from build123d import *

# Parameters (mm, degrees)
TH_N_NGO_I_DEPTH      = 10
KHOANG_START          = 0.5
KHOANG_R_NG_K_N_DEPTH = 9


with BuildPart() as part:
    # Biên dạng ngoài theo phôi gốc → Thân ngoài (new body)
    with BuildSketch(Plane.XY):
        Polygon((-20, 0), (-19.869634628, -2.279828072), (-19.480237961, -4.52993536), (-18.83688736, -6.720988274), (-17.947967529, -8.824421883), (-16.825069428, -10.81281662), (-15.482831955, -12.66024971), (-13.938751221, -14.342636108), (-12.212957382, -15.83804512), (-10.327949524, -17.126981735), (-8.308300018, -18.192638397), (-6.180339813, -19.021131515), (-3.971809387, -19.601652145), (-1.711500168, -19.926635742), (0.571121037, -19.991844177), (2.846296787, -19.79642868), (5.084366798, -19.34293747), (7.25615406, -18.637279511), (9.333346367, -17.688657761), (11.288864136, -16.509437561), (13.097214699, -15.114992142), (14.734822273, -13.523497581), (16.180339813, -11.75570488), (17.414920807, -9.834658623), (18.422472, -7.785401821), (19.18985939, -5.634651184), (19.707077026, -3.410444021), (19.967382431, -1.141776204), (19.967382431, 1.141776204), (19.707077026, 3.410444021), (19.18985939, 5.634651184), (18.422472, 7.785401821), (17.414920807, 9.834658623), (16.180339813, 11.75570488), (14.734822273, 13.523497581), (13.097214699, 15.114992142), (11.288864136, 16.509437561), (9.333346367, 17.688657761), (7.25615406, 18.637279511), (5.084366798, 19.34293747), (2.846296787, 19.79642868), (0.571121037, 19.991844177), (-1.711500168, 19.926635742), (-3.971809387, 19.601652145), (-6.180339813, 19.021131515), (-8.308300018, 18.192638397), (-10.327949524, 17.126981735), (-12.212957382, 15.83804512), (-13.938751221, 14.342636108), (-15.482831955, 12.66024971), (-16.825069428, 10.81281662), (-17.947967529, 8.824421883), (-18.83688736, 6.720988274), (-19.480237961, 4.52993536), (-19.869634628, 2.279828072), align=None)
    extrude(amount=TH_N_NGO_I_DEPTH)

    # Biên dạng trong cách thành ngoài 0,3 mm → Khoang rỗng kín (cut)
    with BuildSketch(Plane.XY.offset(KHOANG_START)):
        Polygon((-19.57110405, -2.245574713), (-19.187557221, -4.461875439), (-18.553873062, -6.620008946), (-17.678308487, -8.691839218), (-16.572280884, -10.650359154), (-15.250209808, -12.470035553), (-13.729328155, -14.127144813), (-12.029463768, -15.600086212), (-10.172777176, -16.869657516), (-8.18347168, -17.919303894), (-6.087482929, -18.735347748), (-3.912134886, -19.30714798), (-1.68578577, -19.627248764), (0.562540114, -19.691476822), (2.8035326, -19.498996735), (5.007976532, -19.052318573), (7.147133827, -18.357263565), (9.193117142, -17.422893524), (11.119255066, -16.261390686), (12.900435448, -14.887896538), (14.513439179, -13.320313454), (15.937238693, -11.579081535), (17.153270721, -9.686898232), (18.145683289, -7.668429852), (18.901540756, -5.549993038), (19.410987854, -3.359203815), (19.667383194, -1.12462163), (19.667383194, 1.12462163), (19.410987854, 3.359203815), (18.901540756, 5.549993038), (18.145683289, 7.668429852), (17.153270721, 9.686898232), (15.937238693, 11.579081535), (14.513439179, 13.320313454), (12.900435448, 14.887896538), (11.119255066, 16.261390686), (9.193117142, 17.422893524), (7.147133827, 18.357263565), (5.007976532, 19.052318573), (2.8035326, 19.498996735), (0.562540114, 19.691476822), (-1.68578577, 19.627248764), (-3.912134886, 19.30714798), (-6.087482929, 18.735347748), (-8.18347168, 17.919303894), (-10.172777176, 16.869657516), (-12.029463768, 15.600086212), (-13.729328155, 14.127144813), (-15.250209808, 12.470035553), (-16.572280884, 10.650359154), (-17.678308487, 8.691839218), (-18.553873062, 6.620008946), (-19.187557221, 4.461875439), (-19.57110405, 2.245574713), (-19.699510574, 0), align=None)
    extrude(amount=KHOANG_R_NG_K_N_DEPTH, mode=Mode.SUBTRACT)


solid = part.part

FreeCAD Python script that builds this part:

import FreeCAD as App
import Part
import Sketcher

doc = App.newDocument("Part")
params = doc.addObject("Spreadsheet::Sheet", "Params")
for row, (alias, value) in enumerate([
    ("pad1_length", "10 mm"),
    ("pocket1_length", "9 mm"),
], start=1):
    params.set(f"A{row}", alias)
    params.set(f"B{row}", "=" + value)
    params.setAlias(f"B{row}", alias)

body = doc.addObject("PartDesign::Body", "Body")

sketch1 = doc.addObject("Sketcher::SketchObject", "Sketch")
body.addObject(sketch1)
sketch1.AttachmentSupport = (doc.XY_Plane, [""])
sketch1.MapMode = "FlatFace"
sketch1.addGeometry([
    Part.LineSegment(App.Vector(-20, 0, 0), App.Vector(-19.869635, -2.279828, 0)),
    Part.LineSegment(App.Vector(-19.869635, -2.279828, 0), App.Vector(-19.480238, -4.529935, 0)),
    Part.LineSegment(App.Vector(-19.480238, -4.529935, 0), App.Vector(-18.836887, -6.720988, 0)),
    Part.LineSegment(App.Vector(-18.836887, -6.720988, 0), App.Vector(-17.947968, -8.824422, 0)),
    Part.LineSegment(App.Vector(-17.947968, -8.824422, 0), App.Vector(-16.825069, -10.812817, 0)),
    Part.LineSegment(App.Vector(-16.825069, -10.812817, 0), App.Vector(-15.482832, -12.66025, 0)),
    Part.LineSegment(App.Vector(-15.482832, -12.66025, 0), App.Vector(-13.938751, -14.342636, 0)),
    Part.LineSegment(App.Vector(-13.938751, -14.342636, 0), App.Vector(-12.212957, -15.838045, 0)),
    Part.LineSegment(App.Vector(-12.212957, -15.838045, 0), App.Vector(-10.32795, -17.126982, 0)),
    Part.LineSegment(App.Vector(-10.32795, -17.126982, 0), App.Vector(-8.3083, -18.192638, 0)),
    Part.LineSegment(App.Vector(-8.3083, -18.192638, 0), App.Vector(-6.18034, -19.021132, 0)),
    Part.LineSegment(App.Vector(-6.18034, -19.021132, 0), App.Vector(-3.971809, -19.601652, 0)),
    Part.LineSegment(App.Vector(-3.971809, -19.601652, 0), App.Vector(-1.7115, -19.926636, 0)),
    Part.LineSegment(App.Vector(-1.7115, -19.926636, 0), App.Vector(0.571121, -19.991844, 0)),
    Part.LineSegment(App.Vector(0.571121, -19.991844, 0), App.Vector(2.846297, -19.796429, 0)),
    Part.LineSegment(App.Vector(2.846297, -19.796429, 0), App.Vector(5.084367, -19.342937, 0)),
    Part.LineSegment(App.Vector(5.084367, -19.342937, 0), App.Vector(7.256154, -18.63728, 0)),
    Part.LineSegment(App.Vector(7.256154, -18.63728, 0), App.Vector(9.333346, -17.688658, 0)),
    Part.LineSegment(App.Vector(9.333346, -17.688658, 0), App.Vector(11.288864, -16.509438, 0)),
    Part.LineSegment(App.Vector(11.288864, -16.509438, 0), App.Vector(13.097215, -15.114992, 0)),
    Part.LineSegment(App.Vector(13.097215, -15.114992, 0), App.Vector(14.734822, -13.523498, 0)),
    Part.LineSegment(App.Vector(14.734822, -13.523498, 0), App.Vector(16.18034, -11.755705, 0)),
    Part.LineSegment(App.Vector(16.18034, -11.755705, 0), App.Vector(17.414921, -9.834659, 0)),
    Part.LineSegment(App.Vector(17.414921, -9.834659, 0), App.Vector(18.422472, -7.785402, 0)),
    Part.LineSegment(App.Vector(18.422472, -7.785402, 0), App.Vector(19.189859, -5.634651, 0)),
    Part.LineSegment(App.Vector(19.189859, -5.634651, 0), App.Vector(19.707077, -3.410444, 0)),
    Part.LineSegment(App.Vector(19.707077, -3.410444, 0), App.Vector(19.967382, -1.141776, 0)),
    Part.LineSegment(App.Vector(19.967382, -1.141776, 0), App.Vector(19.967382, 1.141776, 0)),
    Part.LineSegment(App.Vector(19.967382, 1.141776, 0), App.Vector(19.707077, 3.410444, 0)),
    Part.LineSegment(App.Vector(19.707077, 3.410444, 0), App.Vector(19.189859, 5.634651, 0)),
    Part.LineSegment(App.Vector(19.189859, 5.634651, 0), App.Vector(18.422472, 7.785402, 0)),
    Part.LineSegment(App.Vector(18.422472, 7.785402, 0), App.Vector(17.414921, 9.834659, 0)),
    Part.LineSegment(App.Vector(17.414921, 9.834659, 0), App.Vector(16.18034, 11.755705, 0)),
    Part.LineSegment(App.Vector(16.18034, 11.755705, 0), App.Vector(14.734822, 13.523498, 0)),
    Part.LineSegment(App.Vector(14.734822, 13.523498, 0), App.Vector(13.097215, 15.114992, 0)),
    Part.LineSegment(App.Vector(13.097215, 15.114992, 0), App.Vector(11.288864, 16.509438, 0)),
    Part.LineSegment(App.Vector(11.288864, 16.509438, 0), App.Vector(9.333346, 17.688658, 0)),
    Part.LineSegment(App.Vector(9.333346, 17.688658, 0), App.Vector(7.256154, 18.63728, 0)),
    Part.LineSegment(App.Vector(7.256154, 18.63728, 0), App.Vector(5.084367, 19.342937, 0)),
    Part.LineSegment(App.Vector(5.084367, 19.342937, 0), App.Vector(2.846297, 19.796429, 0)),
    Part.LineSegment(App.Vector(2.846297, 19.796429, 0), App.Vector(0.571121, 19.991844, 0)),
    Part.LineSegment(App.Vector(0.571121, 19.991844, 0), App.Vector(-1.7115, 19.926636, 0)),
    Part.LineSegment(App.Vector(-1.7115, 19.926636, 0), App.Vector(-3.971809, 19.601652, 0)),
    Part.LineSegment(App.Vector(-3.971809, 19.601652, 0), App.Vector(-6.18034, 19.021132, 0)),
    Part.LineSegment(App.Vector(-6.18034, 19.021132, 0), App.Vector(-8.3083, 18.192638, 0)),
    Part.LineSegment(App.Vector(-8.3083, 18.192638, 0), App.Vector(-10.32795, 17.126982, 0)),
    Part.LineSegment(App.Vector(-10.32795, 17.126982, 0), App.Vector(-12.212957, 15.838045, 0)),
    Part.LineSegment(App.Vector(-12.212957, 15.838045, 0), App.Vector(-13.938751, 14.342636, 0)),
    Part.LineSegment(App.Vector(-13.938751, 14.342636, 0), App.Vector(-15.482832, 12.66025, 0)),
    Part.LineSegment(App.Vector(-15.482832, 12.66025, 0), App.Vector(-16.825069, 10.812817, 0)),
    Part.LineSegment(App.Vector(-16.825069, 10.812817, 0), App.Vector(-17.947968, 8.824422, 0)),
    Part.LineSegment(App.Vector(-17.947968, 8.824422, 0), App.Vector(-18.836887, 6.720988, 0)),
    Part.LineSegment(App.Vector(-18.836887, 6.720988, 0), App.Vector(-19.480238, 4.529935, 0)),
    Part.LineSegment(App.Vector(-19.480238, 4.529935, 0), App.Vector(-19.869635, 2.279828, 0)),
    Part.LineSegment(App.Vector(-19.869635, 2.279828, 0), App.Vector(-20, 0, 0)),
], False)
sketch1.addConstraint([
    Sketcher.Constraint("Coincident", 0, 2, 1, 1),
    Sketcher.Constraint("Coincident", 1, 2, 2, 1),
    Sketcher.Constraint("Coincident", 2, 2, 3, 1),
    Sketcher.Constraint("Coincident", 3, 2, 4, 1),
    Sketcher.Constraint("Coincident", 4, 2, 5, 1),
    Sketcher.Constraint("Coincident", 5, 2, 6, 1),
    Sketcher.Constraint("Coincident", 6, 2, 7, 1),
    Sketcher.Constraint("Coincident", 7, 2, 8, 1),
    Sketcher.Constraint("Coincident", 8, 2, 9, 1),
    Sketcher.Constraint("Coincident", 9, 2, 10, 1),
    Sketcher.Constraint("Coincident", 10, 2, 11, 1),
    Sketcher.Constraint("Coincident", 11, 2, 12, 1),
    Sketcher.Constraint("Coincident", 12, 2, 13, 1),
    Sketcher.Constraint("Coincident", 13, 2, 14, 1),
    Sketcher.Constraint("Coincident", 14, 2, 15, 1),
    Sketcher.Constraint("Coincident", 15, 2, 16, 1),
    Sketcher.Constraint("Coincident", 16, 2, 17, 1),
    Sketcher.Constraint("Coincident", 17, 2, 18, 1),
    Sketcher.Constraint("Coincident", 18, 2, 19, 1),
    Sketcher.Constraint("Coincident", 19, 2, 20, 1),
    Sketcher.Constraint("Coincident", 20, 2, 21, 1),
    Sketcher.Constraint("Coincident", 21, 2, 22, 1),
    Sketcher.Constraint("Coincident", 22, 2, 23, 1),
    Sketcher.Constraint("Coincident", 23, 2, 24, 1),
    Sketcher.Constraint("Coincident", 24, 2, 25, 1),
    Sketcher.Constraint("Coincident", 25, 2, 26, 1),
    Sketcher.Constraint("Coincident", 26, 2, 27, 1),
    Sketcher.Constraint("Coincident", 27, 2, 28, 1),
    Sketcher.Constraint("Coincident", 28, 2, 29, 1),
    Sketcher.Constraint("Coincident", 29, 2, 30, 1),
    Sketcher.Constraint("Coincident", 30, 2, 31, 1),
    Sketcher.Constraint("Coincident", 31, 2, 32, 1),
    Sketcher.Constraint("Coincident", 32, 2, 33, 1),
    Sketcher.Constraint("Coincident", 33, 2, 34, 1),
    Sketcher.Constraint("Coincident", 34, 2, 35, 1),
    Sketcher.Constraint("Coincident", 35, 2, 36, 1),
    Sketcher.Constraint("Coincident", 36, 2, 37, 1),
    Sketcher.Constraint("Coincident", 37, 2, 38, 1),
    Sketcher.Constraint("Coincident", 38, 2, 39, 1),
    Sketcher.Constraint("Coincident", 39, 2, 40, 1),
    Sketcher.Constraint("Coincident", 40, 2, 41, 1),
    Sketcher.Constraint("Coincident", 41, 2, 42, 1),
    Sketcher.Constraint("Coincident", 42, 2, 43, 1),
    Sketcher.Constraint("Coincident", 43, 2, 44, 1),
    Sketcher.Constraint("Coincident", 44, 2, 45, 1),
    Sketcher.Constraint("Coincident", 45, 2, 46, 1),
    Sketcher.Constraint("Coincident", 46, 2, 47, 1),
    Sketcher.Constraint("Coincident", 47, 2, 48, 1),
    Sketcher.Constraint("Coincident", 48, 2, 49, 1),
    Sketcher.Constraint("Coincident", 49, 2, 50, 1),
    Sketcher.Constraint("Coincident", 50, 2, 51, 1),
    Sketcher.Constraint("Coincident", 51, 2, 52, 1),
    Sketcher.Constraint("Coincident", 52, 2, 53, 1),
    Sketcher.Constraint("Coincident", 53, 2, 54, 1),
    Sketcher.Constraint("Coincident", 54, 2, 0, 1),
    Sketcher.Constraint("Vertical", 27),
    Sketcher.Constraint("PointOnObject", 54, 2, -1),
    Sketcher.Constraint("DistanceX", 54, 2, -1, 1, 20.0),
    Sketcher.Constraint("DistanceY", 17, 2, 22, 2, 7.853999),
    Sketcher.Constraint("DistanceY", 31, 2, 36, 2, 7.853999),
    Sketcher.Constraint("DistanceX", 9, 2, -1, 1, 8.3083),
    Sketcher.Constraint("DistanceX", 12, 2, -1, 1, 1.7115),
    Sketcher.Constraint("DistanceY", 23, 2, -1, 1, 7.785402),
    Sketcher.Constraint("DistanceY", -1, 1, 30, 2, 7.785402),
    Sketcher.Constraint("DistanceX", 41, 2, -1, 1, 1.7115),
    Sketcher.Constraint("DistanceX", 44, 2, -1, 1, 8.3083),
    Sketcher.Constraint("DistanceX", 3, 2, 4, 2, 1.122898),
    Sketcher.Constraint("DistanceY", 6, 2, 1, 2, 9.812701),
    Sketcher.Constraint("DistanceX", 6, 2, 8, 2, 3.610802),
    Sketcher.Constraint("DistanceY", 12, 2, 15, 2, 0.583698),
    Sketcher.Constraint("DistanceY", 15, 2, 18, 2, 2.8335),
    Sketcher.Constraint("DistanceX", 20, 2, 22, 2, 2.680099),
    Sketcher.Constraint("DistanceX", 33, 2, 31, 2, 2.680099),
    Sketcher.Constraint("DistanceY", 35, 2, 38, 2, 2.8335),
    Sketcher.Constraint("DistanceY", 38, 2, 41, 2, 0.583698),
    Sketcher.Constraint("DistanceX", 47, 2, 45, 2, 3.610802),
    Sketcher.Constraint("DistanceX", 50, 2, 49, 2, 1.122898),
    Sketcher.Constraint("Distance", 6, 2.283552),
    Sketcher.Constraint("Distance", 9, 2.283552),
    Sketcher.Constraint("Distance", 22, 2.283552),
    Sketcher.Constraint("Distance", 32, 2.283552),
    Sketcher.Constraint("Distance", 45, 2.283552),
    Sketcher.Constraint("Distance", 48, 2.283552),
    Sketcher.Constraint("DistanceY", 27, 1, 27, 2, 2.283552),
    Sketcher.Constraint("DistanceY", 0, 2, -1, 1, 2.279828),
    Sketcher.Constraint("DistanceY", 2, 2, -1, 1, 6.720988),
    Sketcher.Constraint("DistanceY", 3, 2, -1, 1, 8.824422),
    Sketcher.Constraint("DistanceX", 4, 2, -1, 1, 16.825069),
    Sketcher.Constraint("DistanceX", 5, 2, -1, 1, 15.482832),
    Sketcher.Constraint("DistanceY", 5, 2, -1, 1, 12.66025),
    Sketcher.Constraint("DistanceX", 6, 2, -1, 1, 13.938751),
    Sketcher.Constraint("DistanceY", 8, 2, -1, 1, 17.126982),
    Sketcher.Constraint("DistanceX", 10, 2, -1, 1, 6.18034),
    Sketcher.Constraint("DistanceY", 10, 2, -1, 1, 19.021132),
    Sketcher.Constraint("DistanceX", 11, 2, -1, 1, 3.971809),
    Sketcher.Constraint("DistanceX", -1, 1, 13, 2, 0.571121),
    Sketcher.Constraint("DistanceY", 14, 2, -1, 1, 19.796429),
    Sketcher.Constraint("DistanceY", 16, 2, -1, 1, 18.63728),
    Sketcher.Constraint("DistanceX", -1, 1, 21, 2, 16.18034),
    Sketcher.Constraint("DistanceX", -1, 1, 22, 2, 17.414921),
    Sketcher.Constraint("DistanceY", 22, 2, -1, 1, 9.834659),
    Sketcher.Constraint("DistanceX", -1, 1, 23, 2, 18.422472),
    Sketcher.Constraint("DistanceX", -1, 1, 24, 2, 19.189859),
    Sketcher.Constraint("DistanceY", 24, 2, -1, 1, 5.634651),
    Sketcher.Constraint("DistanceX", -1, 1, 29, 2, 19.189859),
    Sketcher.Constraint("DistanceY", -1, 1, 29, 2, 5.634651),
    Sketcher.Constraint("DistanceX", -1, 1, 30, 2, 18.422472),
    Sketcher.Constraint("DistanceX", -1, 1, 31, 2, 17.414921),
    Sketcher.Constraint("DistanceY", -1, 1, 31, 2, 9.834659),
    Sketcher.Constraint("DistanceX", -1, 1, 32, 2, 16.18034),
    Sketcher.Constraint("DistanceY", -1, 1, 37, 2, 18.63728),
    Sketcher.Constraint("DistanceY", -1, 1, 39, 2, 19.796429),
    Sketcher.Constraint("DistanceX", -1, 1, 40, 2, 0.571121),
    Sketcher.Constraint("DistanceX", 42, 2, -1, 1, 3.971809),
    Sketcher.Constraint("DistanceX", 43, 2, -1, 1, 6.18034),
    Sketcher.Constraint("DistanceY", -1, 1, 43, 2, 19.021132),
    Sketcher.Constraint("DistanceY", -1, 1, 44, 2, 18.192638),
    Sketcher.Constraint("DistanceX", 45, 2, -1, 1, 10.32795),
    Sketcher.Constraint("DistanceX", 48, 2, -1, 1, 15.482832),
    Sketcher.Constraint("DistanceY", -1, 1, 48, 2, 12.66025),
    Sketcher.Constraint("DistanceX", 49, 2, -1, 1, 16.825069),
    Sketcher.Constraint("DistanceY", -1, 1, 50, 2, 8.824422),
    Sketcher.Constraint("DistanceY", -1, 1, 51, 2, 6.720988),
    Sketcher.Constraint("DistanceY", -1, 1, 53, 2, 2.279828),
    Sketcher.Constraint("DistanceX", 1, 2, 2, 2, 0.643351),
    Sketcher.Constraint("DistanceX", 2, 2, 3, 2, 0.88892),
    Sketcher.Constraint("DistanceY", 4, 2, 2, 2, 4.091828),
    Sketcher.Constraint("DistanceY", 7, 2, 6, 2, 1.495409),
    Sketcher.Constraint("DistanceX", 3, 2, 7, 2, 5.73501),
    Sketcher.Constraint("DistanceY", 11, 2, 10, 2, 0.580521),
    Sketcher.Constraint("DistanceY", 12, 2, 7, 2, 4.088591),
    Sketcher.Constraint("DistanceY", 13, 2, 12, 2, 0.065208),
    Sketcher.Constraint("DistanceX", 14, 2, 15, 2, 2.23807),
    Sketcher.Constraint("DistanceX", 15, 2, 17, 2, 4.24898),
    Sketcher.Constraint("DistanceX", 16, 2, 18, 2, 4.03271),
    Sketcher.Constraint("DistanceX", 18, 2, 19, 2, 1.808351),
    Sketcher.Constraint("DistanceX", 17, 2, 19, 2, 3.763868),
    Sketcher.Constraint("DistanceX", 18, 2, 20, 2, 3.445958),
    Sketcher.Constraint("DistanceY", 18, 2, 20, 2, 2.98594),
    Sketcher.Constraint("DistanceY", 19, 2, 23, 2, 7.32959),
    Sketcher.Constraint("DistanceY", 21, 2, 25, 2, 8.345261),
    Sketcher.Constraint("DistanceX", 23, 2, 26, 2, 1.54491),
    Sketcher.Constraint("DistanceY", 21, 2, 26, 2, 10.613929),
    Sketcher.Constraint("DistanceY", 26, 2, 28, 2, 4.55222),
    Sketcher.Constraint("DistanceY", 31, 2, 33, 2, 3.688839),
    Sketcher.Constraint("DistanceY", 30, 2, 34, 2, 7.32959),
    Sketcher.Constraint("DistanceX", 35, 2, 34, 2, 1.808351),
    Sketcher.Constraint("DistanceX", 35, 2, 33, 2, 3.445958),
    Sketcher.Constraint("DistanceY", 33, 2, 35, 2, 2.98594),
    Sketcher.Constraint("DistanceX", 36, 2, 34, 2, 3.763868),
    Sketcher.Constraint("DistanceX", 37, 2, 35, 2, 4.03271),
    Sketcher.Constraint("DistanceX", 38, 2, 36, 2, 4.24898),
    Sketcher.Constraint("DistanceX", 39, 2, 38, 2, 2.23807),
    Sketcher.Constraint("DistanceY", 41, 2, 40, 2, 0.065208),
    Sketcher.Constraint("DistanceY", 43, 2, 42, 2, 0.580521),
    Sketcher.Constraint("DistanceY", 46, 2, 41, 2, 4.088591),
    Sketcher.Constraint("DistanceY", 49, 2, 47, 2, 3.529819),
    Sketcher.Constraint("DistanceX", 50, 2, 46, 2, 5.73501),
    Sketcher.Constraint("DistanceX", 51, 2, 50, 2, 0.88892),
    Sketcher.Constraint("DistanceX", 52, 2, 51, 2, 0.643351),
    Sketcher.Constraint("DistanceY", 52, 2, 49, 2, 6.282881),
    Sketcher.Constraint("Distance", 0, 2.283552),
    Sketcher.Constraint("Distance", 25, 2.283552),
    Sketcher.Constraint("Distance", 28, 2.283553),
    Sketcher.Constraint("Distance", 53, 2.283553),
])
pad1 = doc.addObject("PartDesign::Pad", "Pad")
body.addObject(pad1)
pad1.Profile = sketch1
pad1.setExpression("Length", "Params.pad1_length")

sketch2 = doc.addObject("Sketcher::SketchObject", "Sketch001")
body.addObject(sketch2)
sketch2.AttachmentSupport = (doc.XY_Plane, [""])
sketch2.MapMode = "FlatFace"
sketch2.AttachmentOffset = App.Placement(App.Vector(0, 0, 0.5), App.Rotation())
sketch2.addGeometry([
    Part.LineSegment(App.Vector(-19.571104, -2.245575, 0), App.Vector(-19.187557, -4.461875, 0)),
    Part.LineSegment(App.Vector(-19.187557, -4.461875, 0), App.Vector(-18.553873, -6.620009, 0)),
    Part.LineSegment(App.Vector(-18.553873, -6.620009, 0), App.Vector(-17.678308, -8.691839, 0)),
    Part.LineSegment(App.Vector(-17.678308, -8.691839, 0), App.Vector(-16.572281, -10.650359, 0)),
    Part.LineSegment(App.Vector(-16.572281, -10.650359, 0), App.Vector(-15.25021, -12.470036, 0)),
    Part.LineSegment(App.Vector(-15.25021, -12.470036, 0), App.Vector(-13.729328, -14.127145, 0)),
    Part.LineSegment(App.Vector(-13.729328, -14.127145, 0), App.Vector(-12.029464, -15.600086, 0)),
    Part.LineSegment(App.Vector(-12.029464, -15.600086, 0), App.Vector(-10.172777, -16.869658, 0)),
    Part.LineSegment(App.Vector(-10.172777, -16.869658, 0), App.Vector(-8.183472, -17.919304, 0)),
    Part.LineSegment(App.Vector(-8.183472, -17.919304, 0), App.Vector(-6.087483, -18.735348, 0)),
    Part.LineSegment(App.Vector(-6.087483, -18.735348, 0), App.Vector(-3.912135, -19.307148, 0)),
    Part.LineSegment(App.Vector(-3.912135, -19.307148, 0), App.Vector(-1.685786, -19.627249, 0)),
    Part.LineSegment(App.Vector(-1.685786, -19.627249, 0), App.Vector(0.56254, -19.691477, 0)),
    Part.LineSegment(App.Vector(0.56254, -19.691477, 0), App.Vector(2.803533, -19.498997, 0)),
    Part.LineSegment(App.Vector(2.803533, -19.498997, 0), App.Vector(5.007977, -19.052319, 0)),
    Part.LineSegment(App.Vector(5.007977, -19.052319, 0), App.Vector(7.147134, -18.357264, 0)),
    Part.LineSegment(App.Vector(7.147134, -18.357264, 0), App.Vector(9.193117, -17.422894, 0)),
    Part.LineSegment(App.Vector(9.193117, -17.422894, 0), App.Vector(11.119255, -16.261391, 0)),
    Part.LineSegment(App.Vector(11.119255, -16.261391, 0), App.Vector(12.900435, -14.887897, 0)),
    Part.LineSegment(App.Vector(12.900435, -14.887897, 0), App.Vector(14.513439, -13.320313, 0)),
    Part.LineSegment(App.Vector(14.513439, -13.320313, 0), App.Vector(15.937239, -11.579082, 0)),
    Part.LineSegment(App.Vector(15.937239, -11.579082, 0), App.Vector(17.153271, -9.686898, 0)),
    Part.LineSegment(App.Vector(17.153271, -9.686898, 0), App.Vector(18.145683, -7.66843, 0)),
    Part.LineSegment(App.Vector(18.145683, -7.66843, 0), App.Vector(18.901541, -5.549993, 0)),
    Part.LineSegment(App.Vector(18.901541, -5.549993, 0), App.Vector(19.410988, -3.359204, 0)),
    Part.LineSegment(App.Vector(19.410988, -3.359204, 0), App.Vector(19.667383, -1.124622, 0)),
    Part.LineSegment(App.Vector(19.667383, -1.124622, 0), App.Vector(19.667383, 1.124622, 0)),
    Part.LineSegment(App.Vector(19.667383, 1.124622, 0), App.Vector(19.410988, 3.359204, 0)),
    Part.LineSegment(App.Vector(19.410988, 3.359204, 0), App.Vector(18.901541, 5.549993, 0)),
    Part.LineSegment(App.Vector(18.901541, 5.549993, 0), App.Vector(18.145683, 7.66843, 0)),
    Part.LineSegment(App.Vector(18.145683, 7.66843, 0), App.Vector(17.153271, 9.686898, 0)),
    Part.LineSegment(App.Vector(17.153271, 9.686898, 0), App.Vector(15.937239, 11.579082, 0)),
    Part.LineSegment(App.Vector(15.937239, 11.579082, 0), App.Vector(14.513439, 13.320313, 0)),
    Part.LineSegment(App.Vector(14.513439, 13.320313, 0), App.Vector(12.900435, 14.887897, 0)),
    Part.LineSegment(App.Vector(12.900435, 14.887897, 0), App.Vector(11.119255, 16.261391, 0)),
    Part.LineSegment(App.Vector(11.119255, 16.261391, 0), App.Vector(9.193117, 17.422894, 0)),
    Part.LineSegment(App.Vector(9.193117, 17.422894, 0), App.Vector(7.147134, 18.357264, 0)),
    Part.LineSegment(App.Vector(7.147134, 18.357264, 0), App.Vector(5.007977, 19.052319, 0)),
    Part.LineSegment(App.Vector(5.007977, 19.052319, 0), App.Vector(2.803533, 19.498997, 0)),
    Part.LineSegment(App.Vector(2.803533, 19.498997, 0), App.Vector(0.56254, 19.691477, 0)),
    Part.LineSegment(App.Vector(0.56254, 19.691477, 0), App.Vector(-1.685786, 19.627249, 0)),
    Part.LineSegment(App.Vector(-1.685786, 19.627249, 0), App.Vector(-3.912135, 19.307148, 0)),
    Part.LineSegment(App.Vector(-3.912135, 19.307148, 0), App.Vector(-6.087483, 18.735348, 0)),
    Part.LineSegment(App.Vector(-6.087483, 18.735348, 0), App.Vector(-8.183472, 17.919304, 0)),
    Part.LineSegment(App.Vector(-8.183472, 17.919304, 0), App.Vector(-10.172777, 16.869658, 0)),
    Part.LineSegment(App.Vector(-10.172777, 16.869658, 0), App.Vector(-12.029464, 15.600086, 0)),
    Part.LineSegment(App.Vector(-12.029464, 15.600086, 0), App.Vector(-13.729328, 14.127145, 0)),
    Part.LineSegment(App.Vector(-13.729328, 14.127145, 0), App.Vector(-15.25021, 12.470036, 0)),
    Part.LineSegment(App.Vector(-15.25021, 12.470036, 0), App.Vector(-16.572281, 10.650359, 0)),
    Part.LineSegment(App.Vector(-16.572281, 10.650359, 0), App.Vector(-17.678308, 8.691839, 0)),
    Part.LineSegment(App.Vector(-17.678308, 8.691839, 0), App.Vector(-18.553873, 6.620009, 0)),
    Part.LineSegment(App.Vector(-18.553873, 6.620009, 0), App.Vector(-19.187557, 4.461875, 0)),
    Part.LineSegment(App.Vector(-19.187557, 4.461875, 0), App.Vector(-19.571104, 2.245575, 0)),
    Part.LineSegment(App.Vector(-19.571104, 2.245575, 0), App.Vector(-19.699511, 0, 0)),
    Part.LineSegment(App.Vector(-19.699511, 0, 0), App.Vector(-19.571104, -2.245575, 0)),
], False)
sketch2.addConstraint([
    Sketcher.Constraint("Coincident", 0, 2, 1, 1),
    Sketcher.Constraint("Coincident", 1, 2, 2, 1),
    Sketcher.Constraint("Coincident", 2, 2, 3, 1),
    Sketcher.Constraint("Coincident", 3, 2, 4, 1),
    Sketcher.Constraint("Coincident", 4, 2, 5, 1),
    Sketcher.Constraint("Coincident", 5, 2, 6, 1),
    Sketcher.Constraint("Coincident", 6, 2, 7, 1),
    Sketcher.Constraint("Coincident", 7, 2, 8, 1),
    Sketcher.Constraint("Coincident", 8, 2, 9, 1),
    Sketcher.Constraint("Coincident", 9, 2, 10, 1),
    Sketcher.Constraint("Coincident", 10, 2, 11, 1),
    Sketcher.Constraint("Coincident", 11, 2, 12, 1),
    Sketcher.Constraint("Coincident", 12, 2, 13, 1),
    Sketcher.Constraint("Coincident", 13, 2, 14, 1),
    Sketcher.Constraint("Coincident", 14, 2, 15, 1),
    Sketcher.Constraint("Coincident", 15, 2, 16, 1),
    Sketcher.Constraint("Coincident", 16, 2, 17, 1),
    Sketcher.Constraint("Coincident", 17, 2, 18, 1),
    Sketcher.Constraint("Coincident", 18, 2, 19, 1),
    Sketcher.Constraint("Coincident", 19, 2, 20, 1),
    Sketcher.Constraint("Coincident", 20, 2, 21, 1),
    Sketcher.Constraint("Coincident", 21, 2, 22, 1),
    Sketcher.Constraint("Coincident", 22, 2, 23, 1),
    Sketcher.Constraint("Coincident", 23, 2, 24, 1),
    Sketcher.Constraint("Coincident", 24, 2, 25, 1),
    Sketcher.Constraint("Coincident", 25, 2, 26, 1),
    Sketcher.Constraint("Coincident", 26, 2, 27, 1),
    Sketcher.Constraint("Coincident", 27, 2, 28, 1),
    Sketcher.Constraint("Coincident", 28, 2, 29, 1),
    Sketcher.Constraint("Coincident", 29, 2, 30, 1),
    Sketcher.Constraint("Coincident", 30, 2, 31, 1),
    Sketcher.Constraint("Coincident", 31, 2, 32, 1),
    Sketcher.Constraint("Coincident", 32, 2, 33, 1),
    Sketcher.Constraint("Coincident", 33, 2, 34, 1),
    Sketcher.Constraint("Coincident", 34, 2, 35, 1),
    Sketcher.Constraint("Coincident", 35, 2, 36, 1),
    Sketcher.Constraint("Coincident", 36, 2, 37, 1),
    Sketcher.Constraint("Coincident", 37, 2, 38, 1),
    Sketcher.Constraint("Coincident", 38, 2, 39, 1),
    Sketcher.Constraint("Coincident", 39, 2, 40, 1),
    Sketcher.Constraint("Coincident", 40, 2, 41, 1),
    Sketcher.Constraint("Coincident", 41, 2, 42, 1),
    Sketcher.Constraint("Coincident", 42, 2, 43, 1),
    Sketcher.Constraint("Coincident", 43, 2, 44, 1),
    Sketcher.Constraint("Coincident", 44, 2, 45, 1),
    Sketcher.Constraint("Coincident", 45, 2, 46, 1),
    Sketcher.Constraint("Coincident", 46, 2, 47, 1),
    Sketcher.Constraint("Coincident", 47, 2, 48, 1),
    Sketcher.Constraint("Coincident", 48, 2, 49, 1),
    Sketcher.Constraint("Coincident", 49, 2, 50, 1),
    Sketcher.Constraint("Coincident", 50, 2, 51, 1),
    Sketcher.Constraint("Coincident", 51, 2, 52, 1),
    Sketcher.Constraint("Coincident", 52, 2, 53, 1),
    Sketcher.Constraint("Coincident", 53, 2, 54, 1),
    Sketcher.Constraint("Coincident", 54, 2, 0, 1),
    Sketcher.Constraint("Vertical", 26),
    Sketcher.Constraint("PointOnObject", 53, 2, -1),
    Sketcher.Constraint("DistanceY", 18, 2, 21, 2, 5.200998),
    Sketcher.Constraint("DistanceY", 30, 2, 33, 2, 5.200998),
    Sketcher.Constraint("DistanceY", 21, 2, -1, 1, 9.686898),
    Sketcher.Constraint("DistanceY", -1, 1, 30, 2, 9.686898),
    Sketcher.Constraint("DistanceX", 2, 2, 4, 2, 2.428099),
    Sketcher.Constraint("DistanceY", 7, 2, 3, 2, 6.219298),
    Sketcher.Constraint("DistanceY", 10, 2, 9, 2, 0.5718),
    Sketcher.Constraint("DistanceY", 11, 2, 10, 2, 0.320101),
    Sketcher.Constraint("DistanceX", 13, 2, 15, 2, 4.343601),
    Sketcher.Constraint("DistanceX", 15, 2, 18, 2, 5.753302),
    Sketcher.Constraint("DistanceY", 13, 2, 18, 2, 4.6111),
    Sketcher.Constraint("DistanceX", 19, 2, 20, 2, 1.4238),
    Sketcher.Constraint("DistanceX", 19, 2, 23, 2, 4.388102),
    Sketcher.Constraint("DistanceX", 22, 2, 25, 2, 1.5217),
    Sketcher.Constraint("DistanceX", 29, 2, 26, 2, 1.5217),
    Sketcher.Constraint("DistanceX", 32, 2, 31, 2, 1.4238),
    Sketcher.Constraint("DistanceX", 32, 2, 28, 2, 4.388102),
    Sketcher.Constraint("DistanceX", 36, 2, 33, 2, 5.753302),
    Sketcher.Constraint("DistanceX", 38, 2, 36, 2, 4.343601),
    Sketcher.Constraint("DistanceY", 33, 2, 38, 2, 4.6111),
    Sketcher.Constraint("DistanceY", 41, 2, 40, 2, 0.320101),
    Sketcher.Constraint("DistanceY", 42, 2, 41, 2, 0.5718),
    Sketcher.Constraint("DistanceY", 48, 2, 44, 2, 6.219298),
    Sketcher.Constraint("DistanceX", 49, 2, 47, 2, 2.428099),
    Sketcher.Constraint("DistanceY", 52, 2, 51, 2, 2.216301),
    Sketcher.Constraint("DistanceY", 0, 2, 54, 2, 2.216301),
    Sketcher.Constraint("DistanceY", 26, 1, 26, 2, 2.249243),
    Sketcher.Constraint("DistanceY", 1, 2, -1, 1, 6.620009),
    Sketcher.Constraint("DistanceX", 2, 2, -1, 1, 17.678308),
    Sketcher.Constraint("DistanceY", 2, 2, -1, 1, 8.691839),
    Sketcher.Constraint("DistanceX", 3, 2, -1, 1, 16.572281),
    Sketcher.Constraint("DistanceY", 3, 2, -1, 1, 10.650359),
    Sketcher.Constraint("DistanceX", 5, 2, -1, 1, 13.729328),
    Sketcher.Constraint("DistanceX", 8, 2, -1, 1, 8.183472),
    Sketcher.Constraint("DistanceY", 11, 2, -1, 1, 19.627249),
    Sketcher.Constraint("DistanceX", -1, 1, 12, 2, 0.56254),
    Sketcher.Constraint("DistanceY", 14, 2, -1, 1, 19.052319),
    Sketcher.Constraint("DistanceY", 17, 2, -1, 1, 16.261391),
    Sketcher.Constraint("DistanceX", -1, 1, 19, 2, 14.513439),
    Sketcher.Constraint("DistanceY", 20, 2, -1, 1, 11.579082),
    Sketcher.Constraint("DistanceX", -1, 1, 21, 2, 17.153271),
    Sketcher.Constraint("DistanceY", 22, 2, -1, 1, 7.66843),
    Sketcher.Constraint("DistanceY", 25, 2, -1, 1, 1.124622),
    Sketcher.Constraint("DistanceX", -1, 1, 28, 2, 18.901541),
    Sketcher.Constraint("DistanceY", -1, 1, 29, 2, 7.66843),
    Sketcher.Constraint("DistanceX", -1, 1, 30, 2, 17.153271),
    Sketcher.Constraint("DistanceY", -1, 1, 31, 2, 11.579082),
    Sketcher.Constraint("DistanceY", -1, 1, 34, 2, 16.261391),
    Sketcher.Constraint("DistanceY", -1, 1, 37, 2, 19.052319),
    Sketcher.Constraint("DistanceX", -1, 1, 39, 2, 0.56254),
    Sketcher.Constraint("DistanceY", -1, 1, 40, 2, 19.627249),
    Sketcher.Constraint("DistanceX", 43, 2, -1, 1, 8.183472),
    Sketcher.Constraint("DistanceX", 46, 2, -1, 1, 13.729328),
    Sketcher.Constraint("DistanceX", 47, 2, -1, 1, 15.25021),
    Sketcher.Constraint("DistanceX", 48, 2, -1, 1, 16.572281),
    Sketcher.Constraint("DistanceY", -1, 1, 48, 2, 10.650359),
    Sketcher.Constraint("DistanceY", -1, 1, 49, 2, 8.691839),
    Sketcher.Constraint("DistanceY", -1, 1, 50, 2, 6.620009),
    Sketcher.Constraint("DistanceX", 53, 2, -1, 1, 19.699511),
    Sketcher.Constraint("DistanceX", 0, 2, 2, 2, 1.509249),
    Sketcher.Constraint("DistanceY", 4, 2, 0, 2, 8.00816),
    Sketcher.Constraint("DistanceY", 5, 2, 4, 2, 1.657109),
    Sketcher.Constraint("DistanceY", 6, 2, 5, 2, 1.472941),
    Sketcher.Constraint("DistanceX", 1, 2, 6, 2, 6.524409),
    Sketcher.Constraint("DistanceY", 7, 2, 6, 2, 1.269571),
    Sketcher.Constraint("DistanceX", 5, 2, 7, 2, 3.556551),
    Sketcher.Constraint("DistanceY", 8, 2, 5, 2, 3.792159),
    Sketcher.Constraint("DistanceX", 8, 2, 9, 2, 2.095989),
    Sketcher.Constraint("DistanceX", 6, 2, 9, 2, 5.941981),
    Sketcher.Constraint("DistanceX", 9, 2, 10, 2, 2.175348),
    Sketcher.Constraint("DistanceX", 10, 2, 11, 2, 2.226349),
    Sketcher.Constraint("DistanceY", 12, 2, 11, 2, 0.064228),
    Sketcher.Constraint("DistanceX", 11, 2, 13, 2, 4.489318),
    Sketcher.Constraint("DistanceX", 10, 2, 14, 2, 8.920111),
    Sketcher.Constraint("DistanceY", 15, 2, 16, 2, 0.93437),
    Sketcher.Constraint("DistanceX", 14, 2, 16, 2, 4.185141),
    Sketcher.Constraint("DistanceX", 15, 2, 17, 2, 3.972121),
    Sketcher.Constraint("DistanceY", 16, 2, 19, 2, 4.10258),
    Sketcher.Constraint("DistanceY", 19, 2, 20, 2, 1.741232),
    Sketcher.Constraint("DistanceX", 17, 2, 22, 2, 7.026428),
    Sketcher.Constraint("DistanceY", 20, 2, 23, 2, 6.029088),
    Sketcher.Constraint("DistanceY", 23, 2, 24, 2, 2.190789),
    Sketcher.Constraint("DistanceX", 20, 2, 24, 2, 3.473749),
    Sketcher.Constraint("DistanceY", 27, 2, 28, 2, 2.190789),
    Sketcher.Constraint("DistanceY", 26, 2, 28, 2, 4.425371),
    Sketcher.Constraint("DistanceX", 31, 2, 27, 2, 3.473749),
    Sketcher.Constraint("DistanceY", 31, 2, 32, 2, 1.741232),
    Sketcher.Constraint("DistanceX", 34, 2, 33, 2, 1.78118),
    Sketcher.Constraint("DistanceX", 34, 2, 29, 2, 7.026428),
    Sketcher.Constraint("DistanceX", 35, 2, 33, 2, 3.707318),
    Sketcher.Constraint("DistanceY", 32, 2, 35, 2, 4.10258),
    Sketcher.Constraint("DistanceY", 35, 2, 36, 2, 0.93437),
    Sketcher.Constraint("DistanceX", 37, 2, 35, 2, 4.185141),
    Sketcher.Constraint("DistanceY", 38, 2, 39, 2, 0.19248),
    Sketcher.Constraint("DistanceX", 40, 2, 38, 2, 4.489318),
    Sketcher.Constraint("DistanceX", 41, 2, 40, 2, 2.226349),
    Sketcher.Constraint("DistanceX", 42, 2, 41, 2, 2.175348),
    Sketcher.Constraint("DistanceX", 44, 2, 40, 2, 8.486991),
    Sketcher.Constraint("DistanceY", 45, 2, 44, 2, 1.269571),
    Sketcher.Constraint("DistanceX", 45, 2, 42, 2, 5.941981),
    Sketcher.Constraint("DistanceY", 46, 2, 45, 2, 1.472941),
    Sketcher.Constraint("DistanceY", 46, 2, 43, 2, 3.792159),
    Sketcher.Constraint("DistanceY", 47, 2, 46, 2, 1.657109),
    Sketcher.Constraint("DistanceX", 50, 2, 45, 2, 6.524409),
    Sketcher.Constraint("DistanceX", 51, 2, 49, 2, 1.509249),
    Sketcher.Constraint("DistanceY", 0, 2, 51, 2, 8.923751),
    Sketcher.Constraint("DistanceX", 52, 2, 50, 2, 1.017231),
    Sketcher.Constraint("DistanceX", 54, 2, 1, 2, 1.017231),
])
pocket1 = doc.addObject("PartDesign::Pocket", "Pocket")
body.addObject(pocket1)
pocket1.Profile = sketch2
pocket1.setExpression("Length", "Params.pocket1_length")
pocket1.Reversed = True

doc.recompute()
